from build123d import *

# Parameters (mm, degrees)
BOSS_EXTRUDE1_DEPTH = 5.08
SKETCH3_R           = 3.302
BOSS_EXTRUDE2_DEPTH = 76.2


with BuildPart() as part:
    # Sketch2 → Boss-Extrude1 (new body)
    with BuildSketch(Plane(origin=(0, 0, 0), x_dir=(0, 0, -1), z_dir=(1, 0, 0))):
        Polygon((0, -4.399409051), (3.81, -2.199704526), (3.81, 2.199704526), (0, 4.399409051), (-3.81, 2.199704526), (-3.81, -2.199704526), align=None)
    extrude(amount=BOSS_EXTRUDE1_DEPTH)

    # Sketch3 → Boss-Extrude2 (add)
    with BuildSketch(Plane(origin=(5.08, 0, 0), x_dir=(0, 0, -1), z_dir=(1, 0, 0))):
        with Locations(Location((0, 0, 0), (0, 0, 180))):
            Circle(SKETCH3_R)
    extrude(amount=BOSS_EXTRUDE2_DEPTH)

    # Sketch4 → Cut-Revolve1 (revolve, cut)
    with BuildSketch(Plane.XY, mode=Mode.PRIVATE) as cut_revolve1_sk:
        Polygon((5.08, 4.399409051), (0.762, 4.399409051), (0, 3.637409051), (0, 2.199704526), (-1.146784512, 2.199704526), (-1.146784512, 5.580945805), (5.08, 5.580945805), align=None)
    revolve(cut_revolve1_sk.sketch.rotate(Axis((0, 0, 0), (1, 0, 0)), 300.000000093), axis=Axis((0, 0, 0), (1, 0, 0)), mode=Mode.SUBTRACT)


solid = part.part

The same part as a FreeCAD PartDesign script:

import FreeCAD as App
import Part
import Sketcher
from FreeCAD import Vector
Q = App.Units.Quantity


def add_polygon(sketch, points):
    """Adds a closed chain of lines whose ends are joined by coincident constraints."""
    first, n = sketch.GeometryCount, len(points)
    for a, b in zip(points, points[1:] + points[:1]):
        sketch.addGeometry(Part.LineSegment(App.Vector(*a, 0), App.Vector(*b, 0)), False)
    for i in range(n):
        sketch.addConstraint(Sketcher.Constraint("Coincident", first + i, 2, first + (i + 1) % n, 1))

doc = App.newDocument("Part")
body = doc.addObject("PartDesign::Body", "Body")

sketch1 = body.newObject("Sketcher::SketchObject", "Sketch")
sketch1.AttachmentSupport = (doc.getObject("YZ_Plane"), [""])
sketch1.MapMode = "FlatFace"
add_polygon(sketch1, [(-4.4, 0), (-2.2, -3.8), (2.2, -3.8), (4.4, 0), (2.2, 3.8), (-2.2, 3.8)])
sketch1.addConstraint(Sketcher.Constraint("Horizontal", 1))
sketch1.addConstraint(Sketcher.Constraint("Horizontal", 4))
sketch1.addConstraint(Sketcher.Constraint("Symmetric", 0, 2, 3, 2, -1, 1))
sketch1.addConstraint(Sketcher.Constraint("Symmetric", 2, 2, 5, 2, -1, 1))
sketch1.addConstraint(Sketcher.Constraint("PointOnObject", 2, 2, -1))
sketch1.addConstraint(Sketcher.Constraint("Parallel", 2, 5))
sketch1.addConstraint(Sketcher.Constraint("Vertical", 1, 2, 3, 2))
sketch1.addConstraint(Sketcher.Constraint("Angle", 0, Q("-60 deg")))
sketch1.addConstraint(Sketcher.Constraint("DistanceY", 1, 2, 3, 2, Q("0.3 in")))
sketch1.addConstraint(Sketcher.Constraint("DistanceX", 1, 1, 1, 2, Q("4.399409 mm")))
pad1 = body.newObject("PartDesign::Pad", "Pad")
pad1.Profile = sketch1
pad1.Length = Q("0.2 in")

sketch2 = body.newObject("Sketcher::SketchObject", "Sketch001")
sketch2.AttachmentSupport = (doc.getObject("YZ_Plane"), [""])
sketch2.MapMode = "FlatFace"
sketch2.AttachmentOffset = App.Placement(Vector(0, 0, 0.2 * 25.4), App.Rotation())
sketch2.addGeometry(Part.Circle(Vector(0, 0, 0), Vector(0, 0, 1), 3.3), False)
sketch2.addConstraint(Sketcher.Constraint("Coincident", 0, 3, -1, 1))
sketch2.addConstraint(Sketcher.Constraint("Diameter", 0, Q("0.26 in")))
pad2 = body.newObject("PartDesign::Pad", "Pad001")
pad2.Profile = sketch2
pad2.Length = Q("3 in")

sketch3 = body.newObject("Sketcher::SketchObject", "Sketch002")
sketch3.AttachmentSupport = (doc.getObject("XY_Plane"), [""])
sketch3.MapMode = "FlatFace"
add_polygon(sketch3, [(0.8, 4.4), (5.1, 4.4), (5.1, 5.6), (-1.1, 5.6), (-1.1, 2.2), (0, 2.2), (0, 3.6)])
sketch3.addConstraint(Sketcher.Constraint("Horizontal", 0))
sketch3.addConstraint(Sketcher.Constraint("Vertical", 1))
sketch3.addConstraint(Sketcher.Constraint("Horizontal", 2))
sketch3.addConstraint(Sketcher.Constraint("Vertical", 3))
sketch3.addConstraint(Sketcher.Constraint("Horizontal", 4))
sketch3.addConstraint(Sketcher.Constraint("Vertical", 5))
sketch3.addConstraint(Sketcher.Constraint("PointOnObject", 4, 2, -2))
sketch3.addConstraint(Sketcher.Constraint("Angle", 6, Q("45 deg")))
sketch3.addConstraint(Sketcher.Constraint("DistanceX", 0, 1, 0, 2, Q("0.17 in")))
sketch3.addConstraint(Sketcher.Constraint("DistanceX", -1, 1, 0, 2, Q("0.2 in")))
sketch3.addConstraint(Sketcher.Constraint("DistanceY", 3, 2, 3, 1, Q("3.381241 mm")))
sketch3.addConstraint(Sketcher.Constraint("DistanceX", 2, 2, 2, 1, Q("6.226785 mm")))
sketch3.addConstraint(Sketcher.Constraint("DistanceY", 1, 1, 1, 2, Q("1.181537 mm")))
sketch3.addConstraint(Sketcher.Constraint("DistanceY", -1, 1, 0, 2, Q("4.399409 mm")))
groove = body.newObject("PartDesign::Groove", "Groove")
groove.Profile = sketch3
groove.ReferenceAxis = (sketch3, ["H_Axis"])
groove.Angle = 360

doc.recompute()
